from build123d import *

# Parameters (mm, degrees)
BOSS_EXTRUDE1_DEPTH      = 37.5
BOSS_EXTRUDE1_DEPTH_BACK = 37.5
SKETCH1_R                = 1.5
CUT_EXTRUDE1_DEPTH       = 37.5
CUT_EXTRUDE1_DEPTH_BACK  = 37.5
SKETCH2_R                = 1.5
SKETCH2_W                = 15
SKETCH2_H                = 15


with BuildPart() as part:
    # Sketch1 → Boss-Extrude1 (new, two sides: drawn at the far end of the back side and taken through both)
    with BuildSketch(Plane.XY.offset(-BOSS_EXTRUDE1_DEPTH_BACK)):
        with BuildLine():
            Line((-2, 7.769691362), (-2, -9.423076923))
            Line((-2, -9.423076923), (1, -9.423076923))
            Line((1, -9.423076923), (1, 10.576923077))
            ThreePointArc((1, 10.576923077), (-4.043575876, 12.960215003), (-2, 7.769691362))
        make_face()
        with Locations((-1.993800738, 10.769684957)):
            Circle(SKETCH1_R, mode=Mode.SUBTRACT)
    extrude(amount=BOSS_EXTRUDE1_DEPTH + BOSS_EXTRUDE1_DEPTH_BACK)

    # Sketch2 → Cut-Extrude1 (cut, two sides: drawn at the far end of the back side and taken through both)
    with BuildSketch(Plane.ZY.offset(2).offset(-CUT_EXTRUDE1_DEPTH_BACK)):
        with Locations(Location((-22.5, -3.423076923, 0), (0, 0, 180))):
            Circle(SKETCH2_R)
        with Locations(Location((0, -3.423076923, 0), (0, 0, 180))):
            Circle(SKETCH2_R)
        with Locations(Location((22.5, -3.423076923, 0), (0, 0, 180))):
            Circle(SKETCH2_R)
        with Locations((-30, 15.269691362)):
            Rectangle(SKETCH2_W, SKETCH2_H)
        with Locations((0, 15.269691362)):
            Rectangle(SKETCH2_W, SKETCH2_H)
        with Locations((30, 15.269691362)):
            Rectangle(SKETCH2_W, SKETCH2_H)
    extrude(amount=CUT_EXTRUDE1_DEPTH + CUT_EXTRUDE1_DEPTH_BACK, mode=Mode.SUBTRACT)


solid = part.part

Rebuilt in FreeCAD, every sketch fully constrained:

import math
import FreeCAD as App
import Part
import Sketcher

V = App.Vector


def add_polygon(sketch, points):
    """Adds a closed chain of lines whose ends are joined by coincident constraints."""
    first, n = sketch.GeometryCount, len(points)
    for a, b in zip(points, points[1:] + points[:1]):
        sketch.addGeometry(Part.LineSegment(App.Vector(*a, 0), App.Vector(*b, 0)), False)
    for i in range(n):
        sketch.addConstraint(Sketcher.Constraint("Coincident", first + i, 2, first + (i + 1) % n, 1))

doc = App.newDocument("Part")
params = doc.addObject("Spreadsheet::Sheet", "Params")
for row, (alias, value) in enumerate([
    ("sketch1_diameter", "3 mm"),
    ("sketch1_radius", "3 mm"),
    ("sketch1_width", "3 mm"),
    ("sketch1_height", "20 mm"),
    ("pad1_length", "37.5 mm"),
    ("pad1_length2", "37.5 mm"),
    ("sketch2_diameter", "3 mm"),
    ("sketch2_width", "15 mm"),
], start=1):
    params.set(f"A{row}", alias)
    params.set(f"B{row}", "=" + value)
    params.setAlias(f"B{row}", alias)

body = doc.addObject("PartDesign::Body", "Body")

# Sketch on XY plane
sketch1 = body.newObject("Sketcher::SketchObject", "Sketch")
sketch1.AttachmentSupport = (doc.getObject("XY_Plane"), [""])
sketch1.MapMode = "FlatFace"
sketch1.addGeometry([
    Part.LineSegment(V(-2, 7.769691, 0), V(-2, -9.423077, 0)),  # 0
    Part.LineSegment(V(-2, -9.423077, 0), V(1, -9.423077, 0)),  # 1
    Part.LineSegment(V(1, -9.423077, 0), V(1, 10.576923, 0)),  # 2
    Part.ArcOfCircle(Part.Circle(V(-1.993801, 10.769685, 0), V(0, 0, 1), 3), math.radians(-3.684019), math.radians(269.881603)),  # 3
    Part.Circle(V(-1.993801, 10.769685, 0), V(0, 0, 1), 1.5),  # 4
], False)
sketch1.addConstraint([
    Sketcher.Constraint("Coincident", 0, 2, 1, 1),
    Sketcher.Constraint("Coincident", 1, 2, 2, 1),
    Sketcher.Constraint("Coincident", 2, 2, 3, 1),
    Sketcher.Constraint("Coincident", 3, 2, 0, 1),
    Sketcher.Constraint("Vertical", 0),
    Sketcher.Constraint("Horizontal", 1),
    Sketcher.Constraint("Vertical", 2),
    Sketcher.Constraint("Coincident", 4, 3, 3, 3),
    Sketcher.Constraint("Diameter", 4, 3.0),
    Sketcher.Constraint("Radius", 3, 3.0),
    Sketcher.Constraint("DistanceX", 1, 1, 1, 2, 3.0),
    Sketcher.Constraint("DistanceY", 2, 1, 2, 2, 20.0),
    Sketcher.Constraint("DistanceX", 0, 2, -1, 1, 2.0),
    Sketcher.Constraint("DistanceY", 0, 2, 0, 1, 17.192768),
    Sketcher.Constraint("DistanceY", -1, 1, 3, 2, 7.769691),
])
sketch1.setExpression("Constraints[8]", "Params.sketch1_diameter")
sketch1.setExpression("Constraints[9]", "Params.sketch1_radius")
sketch1.setExpression("Constraints[10]", "Params.sketch1_width")
sketch1.setExpression("Constraints[11]", "Params.sketch1_height")
pad1 = body.newObject("PartDesign::Pad", "Pad")
pad1.Profile = sketch1
pad1.Type = "TwoLengths"
pad1.setExpression("Length", "Params.pad1_length")
pad1.setExpression("Length2", "Params.pad1_length2")

# Sketch on YZ plane
sketch2 = body.newObject("Sketcher::SketchObject", "Sketch001")
sketch2.AttachmentSupport = (doc.getObject("YZ_Plane"), [""])
sketch2.MapMode = "FlatFace"
sketch2.AttachmentOffset = App.Placement(V(0, 0, -2), App.Rotation())
sketch2.addGeometry(Part.Circle(V(-3.423077, -22.5, 0), V(0, 0, 1), 1.5), False)  # 0
sketch2.addGeometry(Part.Circle(V(-3.423077, 0, 0), V(0, 0, 1), 1.5), False)  # 1
sketch2.addGeometry(Part.Circle(V(-3.423077, 22.5, 0), V(0, 0, 1), 1.5), False)  # 2
add_polygon(sketch2, [(22.769691, -37.5), (7.769691, -37.5), (7.769691, -22.5), (22.769691, -22.5)])  # lines 3-6
add_polygon(sketch2, [(22.769691, -7.5), (7.769691, -7.5), (7.769691, 7.5), (22.769691, 7.5)])  # lines 7-10
add_polygon(sketch2, [(22.769691, 22.5), (7.769691, 22.5), (7.769691, 37.5), (22.769691, 37.5)])  # lines 11-14
sketch2.addConstraint([
    Sketcher.Constraint("Horizontal", 3),
    Sketcher.Constraint("Vertical", 4),
    Sketcher.Constraint("Horizontal", 5),
    Sketcher.Constraint("Vertical", 6),
    Sketcher.Constraint("Horizontal", 7),
    Sketcher.Constraint("Vertical", 8),
    Sketcher.Constraint("Horizontal", 9),
    Sketcher.Constraint("Vertical", 10),
    Sketcher.Constraint("Horizontal", 11),
    Sketcher.Constraint("Vertical", 12),
    Sketcher.Constraint("Horizontal", 13),
    Sketcher.Constraint("Vertical", 14),
    Sketcher.Constraint("Equal", 0, 1),
    Sketcher.Constraint("Equal", 1, 2),
    Sketcher.Constraint("Symmetric", 0, 3, 2, 3, -1),
    Sketcher.Constraint("Symmetric", 4, 2, 11, 2, -1),
    Sketcher.Constraint("Symmetric", 6, 2, 13, 2, -1),
    Sketcher.Constraint("PointOnObject", 1, 3, -1),
    Sketcher.Constraint("Horizontal", 0, 3, 4, 2),
    Sketcher.Constraint("Vertical", 0, 3, 1, 3),
    Sketcher.Constraint("Vertical", 4, 2, 7, 2),
    Sketcher.Constraint("Vertical", 6, 2, 9, 2),
    Sketcher.Constraint("Equal", 13, 4),
    Sketcher.Constraint("Equal", 6, 8),
    Sketcher.Constraint("Diameter", 0, 3.0),
    Sketcher.Constraint("DistanceX", 3, 2, 3, 1, 15.0),
    Sketcher.Constraint("DistanceY", 0, 3, 2, 3, 45.0),
    Sketcher.Constraint("DistanceY", 4, 2, 7, 2, 15.0),
    Sketcher.Constraint("DistanceX", -1, 1, 3, 2, 7.769691),
    Sketcher.Constraint("DistanceX", 0, 3, 3, 2, 11.192768),
])
sketch2.setExpression("Constraints[36]", "Params.sketch2_diameter")
sketch2.setExpression("Constraints[37]", "Params.sketch2_width")
pocket1 = body.newObject("PartDesign::Pocket", "Pocket")
pocket1.Profile = sketch2
pocket1.Type = "ThroughAll"
pocket1.Midplane = True

doc.recompute()
